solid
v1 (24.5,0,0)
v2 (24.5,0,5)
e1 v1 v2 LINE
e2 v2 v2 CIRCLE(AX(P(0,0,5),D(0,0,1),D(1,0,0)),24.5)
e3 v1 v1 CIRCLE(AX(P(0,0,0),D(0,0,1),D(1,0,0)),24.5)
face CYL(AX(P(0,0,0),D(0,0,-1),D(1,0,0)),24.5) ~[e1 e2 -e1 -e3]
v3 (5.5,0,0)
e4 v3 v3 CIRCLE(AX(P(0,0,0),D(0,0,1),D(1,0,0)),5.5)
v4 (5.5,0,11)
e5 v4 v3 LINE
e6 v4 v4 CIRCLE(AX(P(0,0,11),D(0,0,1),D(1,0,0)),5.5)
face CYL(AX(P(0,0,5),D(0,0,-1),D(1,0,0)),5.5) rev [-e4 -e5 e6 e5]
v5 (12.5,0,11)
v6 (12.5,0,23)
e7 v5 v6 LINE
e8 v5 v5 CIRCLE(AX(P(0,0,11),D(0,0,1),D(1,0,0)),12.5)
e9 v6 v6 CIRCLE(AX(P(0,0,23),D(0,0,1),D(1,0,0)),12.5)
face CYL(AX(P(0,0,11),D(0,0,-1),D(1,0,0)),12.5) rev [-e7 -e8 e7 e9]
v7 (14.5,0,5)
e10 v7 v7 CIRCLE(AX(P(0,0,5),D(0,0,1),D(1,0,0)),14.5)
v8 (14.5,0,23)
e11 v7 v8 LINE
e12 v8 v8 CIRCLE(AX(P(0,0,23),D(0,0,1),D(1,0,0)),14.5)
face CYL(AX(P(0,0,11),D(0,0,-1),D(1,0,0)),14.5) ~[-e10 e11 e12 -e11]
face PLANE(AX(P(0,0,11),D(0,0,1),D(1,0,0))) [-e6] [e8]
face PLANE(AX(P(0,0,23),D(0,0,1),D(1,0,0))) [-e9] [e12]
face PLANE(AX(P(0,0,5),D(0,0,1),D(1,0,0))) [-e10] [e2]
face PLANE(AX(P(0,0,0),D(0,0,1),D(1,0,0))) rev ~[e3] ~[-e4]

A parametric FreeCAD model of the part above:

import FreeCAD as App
import Part
import Sketcher

doc = App.newDocument("Part")
body = doc.addObject("PartDesign::Body", "Body")

sketch1 = body.newObject("Sketcher::SketchObject", "Sketch")
sketch1.AttachmentSupport = (doc.getObject("XY_Plane"), [""])
sketch1.MapMode = "FlatFace"
sketch1.addGeometry(Part.Circle(App.Vector(0, 0, 0), App.Vector(0, 0, 1), 24.5), False)
sketch1.addGeometry(Part.Circle(App.Vector(0, 0, 0), App.Vector(0, 0, 1), 5.5), False)
sketch1.addConstraint(Sketcher.Constraint("Coincident", 0, 3, -1, 1))
sketch1.addConstraint(Sketcher.Constraint("Coincident", 1, 3, -1, 1))
sketch1.addConstraint(Sketcher.Constraint("Diameter", 0, 49.0))
sketch1.addConstraint(Sketcher.Constraint("Diameter", 1, 11.0))
pad1 = body.newObject("PartDesign::Pad", "Pad")
pad1.Profile = sketch1
pad1.Length = 5

sketch2 = body.newObject("Sketcher::SketchObject", "Sketch001")
sketch2.AttachmentSupport = (doc.getObject("XY_Plane"), [""])
sketch2.MapMode = "FlatFace"
sketch2.AttachmentOffset = App.Placement(App.Vector(0, 0, 5), App.Rotation())
sketch2.addGeometry(Part.Circle(App.Vector(0, 0, 0), App.Vector(0, 0, 1), 14.5), False)
sketch2.addGeometry(Part.Circle(App.Vector(0, 0, 0), App.Vector(0, 0, 1), 5.5), False)
sketch2.addConstraint(Sketcher.Constraint("Coincident", 0, 3, -1, 1))
sketch2.addConstraint(Sketcher.Constraint("Coincident", 1, 3, -1, 1))
sketch2.addConstraint(Sketcher.Constraint("Diameter", 0, 29.0))
sketch2.addConstraint(Sketcher.Constraint("Diameter", 1, 11.0))
pad2 = body.newObject("PartDesign::Pad", "Pad001")
pad2.Profile = sketch2
pad2.Length = 6

sketch3 = body.newObject("Sketcher::SketchObject", "Sketch002")
sketch3.AttachmentSupport = (doc.getObject("XY_Plane"), [""])
sketch3.MapMode = "FlatFace"
sketch3.AttachmentOffset = App.Placement(App.Vector(0, 0, 11), App.Rotation())
sketch3.addGeometry(Part.Circle(App.Vector(0, 0, 0), App.Vector(0, 0, 1), 14.5), False)
sketch3.addGeometry(Part.Circle(App.Vector(0, 0, 0), App.Vector(0, 0, 1), 12.5), False)
sketch3.addConstraint(Sketcher.Constraint("Coincident", 0, 3, -1, 1))
sketch3.addConstraint(Sketcher.Constraint("Coincident", 1, 3, -1, 1))
sketch3.addConstraint(Sketcher.Constraint("Diameter", 0, 29.0))
sketch3.addConstraint(Sketcher.Constraint("Diameter", 1, 25.0))
pad3 = body.newObject("PartDesign::Pad", "Pad002")
pad3.Profile = sketch3
pad3.Length = 12

doc.recompute()
